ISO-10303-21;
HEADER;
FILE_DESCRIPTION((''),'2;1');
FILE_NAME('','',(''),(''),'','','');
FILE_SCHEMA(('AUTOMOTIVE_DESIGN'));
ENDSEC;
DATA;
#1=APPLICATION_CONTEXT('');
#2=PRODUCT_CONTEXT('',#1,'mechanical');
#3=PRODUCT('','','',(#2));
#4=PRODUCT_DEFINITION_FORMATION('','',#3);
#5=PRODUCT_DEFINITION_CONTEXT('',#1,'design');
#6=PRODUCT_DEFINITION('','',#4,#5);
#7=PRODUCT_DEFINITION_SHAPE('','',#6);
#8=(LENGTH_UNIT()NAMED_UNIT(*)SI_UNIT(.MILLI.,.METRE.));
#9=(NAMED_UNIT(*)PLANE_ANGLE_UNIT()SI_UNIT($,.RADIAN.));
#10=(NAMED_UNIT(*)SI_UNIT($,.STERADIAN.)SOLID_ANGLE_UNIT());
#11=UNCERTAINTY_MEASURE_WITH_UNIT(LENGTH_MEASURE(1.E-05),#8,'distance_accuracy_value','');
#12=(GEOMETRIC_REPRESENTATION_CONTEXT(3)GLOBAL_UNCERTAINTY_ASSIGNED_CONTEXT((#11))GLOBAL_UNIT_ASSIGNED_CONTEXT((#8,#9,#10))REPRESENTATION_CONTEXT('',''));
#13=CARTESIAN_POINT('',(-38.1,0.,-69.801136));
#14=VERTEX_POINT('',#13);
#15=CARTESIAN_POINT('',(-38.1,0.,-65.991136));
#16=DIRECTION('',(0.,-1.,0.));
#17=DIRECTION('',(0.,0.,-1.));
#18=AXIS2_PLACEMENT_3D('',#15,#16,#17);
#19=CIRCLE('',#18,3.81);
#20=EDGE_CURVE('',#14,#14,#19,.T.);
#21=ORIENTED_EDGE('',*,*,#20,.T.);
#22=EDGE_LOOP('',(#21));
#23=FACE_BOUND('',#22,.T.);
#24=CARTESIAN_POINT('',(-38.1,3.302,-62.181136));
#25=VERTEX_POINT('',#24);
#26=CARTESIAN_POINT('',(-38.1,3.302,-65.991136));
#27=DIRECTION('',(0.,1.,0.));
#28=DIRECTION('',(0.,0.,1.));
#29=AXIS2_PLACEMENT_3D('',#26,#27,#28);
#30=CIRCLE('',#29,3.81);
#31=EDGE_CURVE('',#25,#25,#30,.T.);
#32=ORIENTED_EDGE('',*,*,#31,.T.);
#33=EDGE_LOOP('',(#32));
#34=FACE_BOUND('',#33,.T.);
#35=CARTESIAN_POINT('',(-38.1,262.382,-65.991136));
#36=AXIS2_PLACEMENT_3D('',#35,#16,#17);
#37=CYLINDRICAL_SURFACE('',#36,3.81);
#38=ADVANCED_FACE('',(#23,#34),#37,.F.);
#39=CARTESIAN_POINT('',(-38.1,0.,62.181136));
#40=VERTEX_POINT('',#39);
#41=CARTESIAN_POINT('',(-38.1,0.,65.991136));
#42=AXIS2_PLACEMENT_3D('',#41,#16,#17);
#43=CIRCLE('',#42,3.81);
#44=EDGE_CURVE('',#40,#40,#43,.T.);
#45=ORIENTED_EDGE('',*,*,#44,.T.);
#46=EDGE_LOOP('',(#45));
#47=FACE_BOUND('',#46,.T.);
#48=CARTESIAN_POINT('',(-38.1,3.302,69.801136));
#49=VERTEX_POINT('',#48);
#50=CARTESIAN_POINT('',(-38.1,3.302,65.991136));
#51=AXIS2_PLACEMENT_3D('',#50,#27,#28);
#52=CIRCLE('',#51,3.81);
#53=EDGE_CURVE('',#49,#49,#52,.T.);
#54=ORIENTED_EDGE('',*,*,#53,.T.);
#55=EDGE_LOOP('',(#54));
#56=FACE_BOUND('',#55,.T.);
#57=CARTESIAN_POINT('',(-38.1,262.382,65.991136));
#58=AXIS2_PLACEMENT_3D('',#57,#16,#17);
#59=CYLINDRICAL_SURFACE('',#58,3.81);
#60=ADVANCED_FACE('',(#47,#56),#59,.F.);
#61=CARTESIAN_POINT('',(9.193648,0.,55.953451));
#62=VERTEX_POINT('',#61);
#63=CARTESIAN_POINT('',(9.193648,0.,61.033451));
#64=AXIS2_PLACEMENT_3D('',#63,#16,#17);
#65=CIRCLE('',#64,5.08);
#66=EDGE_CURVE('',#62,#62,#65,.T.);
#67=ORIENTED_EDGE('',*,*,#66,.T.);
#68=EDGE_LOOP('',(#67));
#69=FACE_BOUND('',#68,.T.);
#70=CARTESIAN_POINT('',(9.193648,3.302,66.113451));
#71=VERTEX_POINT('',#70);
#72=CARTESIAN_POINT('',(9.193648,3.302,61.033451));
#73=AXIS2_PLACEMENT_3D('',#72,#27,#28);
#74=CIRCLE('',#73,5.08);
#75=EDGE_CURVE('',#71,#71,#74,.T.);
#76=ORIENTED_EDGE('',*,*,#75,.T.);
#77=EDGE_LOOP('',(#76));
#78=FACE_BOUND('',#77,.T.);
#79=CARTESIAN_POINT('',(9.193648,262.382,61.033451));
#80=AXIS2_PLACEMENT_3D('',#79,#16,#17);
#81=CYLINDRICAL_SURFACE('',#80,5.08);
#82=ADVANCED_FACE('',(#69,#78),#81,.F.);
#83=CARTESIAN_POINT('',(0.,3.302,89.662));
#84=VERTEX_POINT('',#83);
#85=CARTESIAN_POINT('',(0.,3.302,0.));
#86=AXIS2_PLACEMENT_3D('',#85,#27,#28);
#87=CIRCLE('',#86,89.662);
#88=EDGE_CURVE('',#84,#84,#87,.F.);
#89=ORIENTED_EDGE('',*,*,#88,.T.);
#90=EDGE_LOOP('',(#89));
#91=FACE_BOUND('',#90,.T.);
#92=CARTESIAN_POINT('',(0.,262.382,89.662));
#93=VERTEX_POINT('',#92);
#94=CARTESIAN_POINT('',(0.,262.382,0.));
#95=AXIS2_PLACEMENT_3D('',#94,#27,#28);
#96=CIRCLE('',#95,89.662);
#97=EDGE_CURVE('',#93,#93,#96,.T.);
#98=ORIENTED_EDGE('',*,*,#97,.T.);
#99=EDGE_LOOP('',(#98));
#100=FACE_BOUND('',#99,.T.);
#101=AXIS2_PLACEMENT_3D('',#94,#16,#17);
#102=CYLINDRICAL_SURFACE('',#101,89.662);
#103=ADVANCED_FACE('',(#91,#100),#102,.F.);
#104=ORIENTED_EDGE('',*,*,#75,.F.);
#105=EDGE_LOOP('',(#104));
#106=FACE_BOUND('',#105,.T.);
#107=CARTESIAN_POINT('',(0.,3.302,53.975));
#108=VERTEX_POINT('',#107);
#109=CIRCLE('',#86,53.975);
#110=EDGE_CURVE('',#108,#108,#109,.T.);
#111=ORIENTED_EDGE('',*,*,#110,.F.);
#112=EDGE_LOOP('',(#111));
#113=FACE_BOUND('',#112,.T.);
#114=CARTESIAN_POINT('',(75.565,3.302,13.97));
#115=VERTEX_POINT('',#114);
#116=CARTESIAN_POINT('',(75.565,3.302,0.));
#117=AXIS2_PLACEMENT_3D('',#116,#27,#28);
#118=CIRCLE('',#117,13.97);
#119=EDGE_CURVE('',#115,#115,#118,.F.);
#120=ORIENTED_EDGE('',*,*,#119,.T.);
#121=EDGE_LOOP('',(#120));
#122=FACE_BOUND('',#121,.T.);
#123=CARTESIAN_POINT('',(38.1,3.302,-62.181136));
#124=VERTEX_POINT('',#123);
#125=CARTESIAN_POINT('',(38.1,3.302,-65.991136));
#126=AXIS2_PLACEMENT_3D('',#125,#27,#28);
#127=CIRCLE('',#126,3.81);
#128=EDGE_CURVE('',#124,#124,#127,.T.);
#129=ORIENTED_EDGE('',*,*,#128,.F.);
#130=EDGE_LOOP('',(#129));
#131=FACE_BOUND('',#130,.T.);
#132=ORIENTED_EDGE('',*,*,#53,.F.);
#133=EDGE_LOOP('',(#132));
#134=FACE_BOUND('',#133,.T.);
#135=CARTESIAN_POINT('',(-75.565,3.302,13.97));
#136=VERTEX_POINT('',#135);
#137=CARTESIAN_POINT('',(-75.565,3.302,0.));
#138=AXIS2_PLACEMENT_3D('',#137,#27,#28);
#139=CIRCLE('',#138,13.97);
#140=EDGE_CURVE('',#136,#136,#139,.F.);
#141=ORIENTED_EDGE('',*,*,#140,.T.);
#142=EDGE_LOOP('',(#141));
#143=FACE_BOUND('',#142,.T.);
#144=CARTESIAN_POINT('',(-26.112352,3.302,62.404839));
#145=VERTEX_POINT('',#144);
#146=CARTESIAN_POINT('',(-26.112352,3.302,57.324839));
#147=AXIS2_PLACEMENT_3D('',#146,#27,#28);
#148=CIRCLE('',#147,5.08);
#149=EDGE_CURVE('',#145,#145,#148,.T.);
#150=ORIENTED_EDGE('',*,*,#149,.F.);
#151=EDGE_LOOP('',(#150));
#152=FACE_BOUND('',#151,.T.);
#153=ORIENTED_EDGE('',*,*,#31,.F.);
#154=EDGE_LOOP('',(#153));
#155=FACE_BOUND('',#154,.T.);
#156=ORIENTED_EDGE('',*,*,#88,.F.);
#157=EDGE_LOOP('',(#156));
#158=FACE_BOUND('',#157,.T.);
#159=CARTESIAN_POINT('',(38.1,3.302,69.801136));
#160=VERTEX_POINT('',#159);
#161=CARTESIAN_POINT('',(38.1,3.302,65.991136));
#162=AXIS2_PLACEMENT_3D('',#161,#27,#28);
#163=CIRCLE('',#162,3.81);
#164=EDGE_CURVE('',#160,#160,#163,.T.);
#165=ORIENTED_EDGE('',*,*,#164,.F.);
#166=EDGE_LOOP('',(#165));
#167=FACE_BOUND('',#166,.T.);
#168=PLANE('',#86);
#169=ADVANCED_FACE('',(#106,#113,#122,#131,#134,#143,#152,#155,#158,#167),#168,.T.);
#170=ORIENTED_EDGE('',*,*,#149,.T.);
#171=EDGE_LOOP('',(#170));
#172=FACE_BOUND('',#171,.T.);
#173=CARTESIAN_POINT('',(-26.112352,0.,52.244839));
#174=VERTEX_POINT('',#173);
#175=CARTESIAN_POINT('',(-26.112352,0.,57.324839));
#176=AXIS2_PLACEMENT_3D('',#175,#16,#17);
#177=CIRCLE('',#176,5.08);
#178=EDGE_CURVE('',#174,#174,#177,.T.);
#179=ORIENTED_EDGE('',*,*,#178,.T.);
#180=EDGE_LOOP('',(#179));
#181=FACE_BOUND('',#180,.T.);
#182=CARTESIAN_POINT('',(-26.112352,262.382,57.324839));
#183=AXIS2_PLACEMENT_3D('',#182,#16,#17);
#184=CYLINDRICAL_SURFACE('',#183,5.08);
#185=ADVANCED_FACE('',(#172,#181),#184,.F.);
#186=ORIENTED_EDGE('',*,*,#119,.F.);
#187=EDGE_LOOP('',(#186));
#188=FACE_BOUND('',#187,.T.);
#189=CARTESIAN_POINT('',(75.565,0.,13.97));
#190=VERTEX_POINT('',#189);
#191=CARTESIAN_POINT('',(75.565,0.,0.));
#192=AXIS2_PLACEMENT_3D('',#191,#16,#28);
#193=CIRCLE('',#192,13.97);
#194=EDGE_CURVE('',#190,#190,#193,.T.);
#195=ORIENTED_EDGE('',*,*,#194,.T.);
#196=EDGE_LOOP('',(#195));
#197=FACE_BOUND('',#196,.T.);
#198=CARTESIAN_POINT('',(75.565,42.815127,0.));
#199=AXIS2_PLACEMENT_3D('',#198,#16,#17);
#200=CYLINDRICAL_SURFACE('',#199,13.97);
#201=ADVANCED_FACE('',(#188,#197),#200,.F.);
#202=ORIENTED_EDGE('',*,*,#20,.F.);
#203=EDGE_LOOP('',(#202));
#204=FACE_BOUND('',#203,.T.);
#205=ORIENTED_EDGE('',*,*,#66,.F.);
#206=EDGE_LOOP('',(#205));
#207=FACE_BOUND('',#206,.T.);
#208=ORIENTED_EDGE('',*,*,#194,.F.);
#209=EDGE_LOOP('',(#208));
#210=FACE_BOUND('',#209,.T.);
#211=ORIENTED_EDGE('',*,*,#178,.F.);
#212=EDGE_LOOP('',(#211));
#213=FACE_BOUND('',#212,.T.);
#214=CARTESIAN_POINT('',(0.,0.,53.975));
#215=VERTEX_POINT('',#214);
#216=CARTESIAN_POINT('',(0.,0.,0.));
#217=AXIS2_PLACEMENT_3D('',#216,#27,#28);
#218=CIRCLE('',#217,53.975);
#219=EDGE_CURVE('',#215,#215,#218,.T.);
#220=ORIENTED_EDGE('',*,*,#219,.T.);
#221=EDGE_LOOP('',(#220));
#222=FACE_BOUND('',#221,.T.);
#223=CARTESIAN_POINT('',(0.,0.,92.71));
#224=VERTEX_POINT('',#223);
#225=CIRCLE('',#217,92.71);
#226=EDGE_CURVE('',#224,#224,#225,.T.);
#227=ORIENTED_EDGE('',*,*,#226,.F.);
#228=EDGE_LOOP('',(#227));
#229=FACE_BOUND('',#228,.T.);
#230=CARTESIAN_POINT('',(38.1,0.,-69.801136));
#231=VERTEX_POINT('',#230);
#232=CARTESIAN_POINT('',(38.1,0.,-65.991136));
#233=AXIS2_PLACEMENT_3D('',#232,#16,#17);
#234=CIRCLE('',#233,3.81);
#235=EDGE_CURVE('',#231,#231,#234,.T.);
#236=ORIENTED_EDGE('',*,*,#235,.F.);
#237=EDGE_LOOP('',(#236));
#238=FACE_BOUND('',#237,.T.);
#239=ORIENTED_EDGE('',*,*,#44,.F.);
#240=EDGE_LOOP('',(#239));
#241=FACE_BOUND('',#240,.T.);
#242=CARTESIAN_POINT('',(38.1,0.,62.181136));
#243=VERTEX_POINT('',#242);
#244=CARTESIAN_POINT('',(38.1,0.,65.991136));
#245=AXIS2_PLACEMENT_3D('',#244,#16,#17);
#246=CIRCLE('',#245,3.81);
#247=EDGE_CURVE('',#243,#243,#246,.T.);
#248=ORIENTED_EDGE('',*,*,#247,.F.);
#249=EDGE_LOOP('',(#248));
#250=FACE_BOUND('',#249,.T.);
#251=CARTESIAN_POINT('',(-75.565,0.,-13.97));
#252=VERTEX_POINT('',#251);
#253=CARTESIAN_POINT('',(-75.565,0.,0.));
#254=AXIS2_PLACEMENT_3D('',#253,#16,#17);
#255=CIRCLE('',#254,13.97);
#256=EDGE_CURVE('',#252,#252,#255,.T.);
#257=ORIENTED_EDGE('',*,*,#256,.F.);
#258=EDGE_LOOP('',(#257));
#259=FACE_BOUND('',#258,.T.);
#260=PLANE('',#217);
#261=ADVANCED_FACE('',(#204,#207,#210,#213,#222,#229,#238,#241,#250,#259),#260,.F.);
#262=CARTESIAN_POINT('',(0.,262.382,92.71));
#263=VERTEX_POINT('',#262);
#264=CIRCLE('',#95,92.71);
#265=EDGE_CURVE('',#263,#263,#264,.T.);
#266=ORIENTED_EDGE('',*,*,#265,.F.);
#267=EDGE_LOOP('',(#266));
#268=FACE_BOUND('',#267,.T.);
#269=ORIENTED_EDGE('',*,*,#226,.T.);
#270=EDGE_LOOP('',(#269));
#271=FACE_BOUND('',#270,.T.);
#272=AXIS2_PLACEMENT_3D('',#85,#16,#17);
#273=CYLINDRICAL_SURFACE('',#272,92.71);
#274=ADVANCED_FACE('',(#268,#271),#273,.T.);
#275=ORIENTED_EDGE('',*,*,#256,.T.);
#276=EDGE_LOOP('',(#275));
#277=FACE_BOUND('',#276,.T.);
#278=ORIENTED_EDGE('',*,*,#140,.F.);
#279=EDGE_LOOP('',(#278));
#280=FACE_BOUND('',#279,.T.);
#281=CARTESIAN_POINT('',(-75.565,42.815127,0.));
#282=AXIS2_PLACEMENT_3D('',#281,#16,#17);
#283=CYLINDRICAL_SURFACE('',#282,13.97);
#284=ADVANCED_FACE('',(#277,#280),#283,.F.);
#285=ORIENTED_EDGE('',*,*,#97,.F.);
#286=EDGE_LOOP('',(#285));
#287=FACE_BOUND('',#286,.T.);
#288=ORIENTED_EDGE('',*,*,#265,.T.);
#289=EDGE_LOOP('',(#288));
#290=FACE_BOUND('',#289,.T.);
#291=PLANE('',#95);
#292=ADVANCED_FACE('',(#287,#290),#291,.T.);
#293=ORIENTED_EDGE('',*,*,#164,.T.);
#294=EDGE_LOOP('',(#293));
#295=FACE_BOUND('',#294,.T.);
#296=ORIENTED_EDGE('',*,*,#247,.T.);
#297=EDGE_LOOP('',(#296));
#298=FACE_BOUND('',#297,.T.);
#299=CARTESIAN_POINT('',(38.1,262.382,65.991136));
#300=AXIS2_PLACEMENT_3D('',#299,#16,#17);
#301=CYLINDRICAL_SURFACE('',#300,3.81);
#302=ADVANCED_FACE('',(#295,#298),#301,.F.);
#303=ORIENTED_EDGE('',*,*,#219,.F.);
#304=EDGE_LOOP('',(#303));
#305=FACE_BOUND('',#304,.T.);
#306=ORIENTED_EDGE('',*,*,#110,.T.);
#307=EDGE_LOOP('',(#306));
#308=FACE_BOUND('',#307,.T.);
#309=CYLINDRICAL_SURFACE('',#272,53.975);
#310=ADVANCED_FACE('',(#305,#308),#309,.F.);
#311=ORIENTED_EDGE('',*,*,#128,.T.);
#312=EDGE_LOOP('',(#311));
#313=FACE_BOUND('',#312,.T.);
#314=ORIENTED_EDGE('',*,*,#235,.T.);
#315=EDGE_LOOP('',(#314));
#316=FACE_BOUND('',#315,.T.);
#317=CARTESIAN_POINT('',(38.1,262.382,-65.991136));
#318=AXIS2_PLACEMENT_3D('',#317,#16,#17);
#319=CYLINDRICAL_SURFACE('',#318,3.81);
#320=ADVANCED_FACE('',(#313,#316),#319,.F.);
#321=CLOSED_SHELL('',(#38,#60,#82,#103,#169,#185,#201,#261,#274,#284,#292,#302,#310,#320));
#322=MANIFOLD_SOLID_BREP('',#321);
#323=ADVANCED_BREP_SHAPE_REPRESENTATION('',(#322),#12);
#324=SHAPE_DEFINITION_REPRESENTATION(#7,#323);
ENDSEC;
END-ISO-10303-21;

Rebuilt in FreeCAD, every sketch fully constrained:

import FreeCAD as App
import Part
import Sketcher
from FreeCAD import Vector
Q = App.Units.Quantity

doc = App.newDocument("Part")
body = doc.addObject("PartDesign::Body", "Body")

# Sketch on XZ plane
sketch1 = doc.addObject("Sketcher::SketchObject", "Sketch")
body.addObject(sketch1)
sketch1.AttachmentSupport = (doc.XZ_Plane, [""])
sketch1.MapMode = "FlatFace"
sketch1.addGeometry([
    Part.Circle(Vector(0, 0, 0), Vector(0, 0, 1), 92.71),
    Part.Circle(Vector(0, 0, 0), Vector(0, 0, 1), 53.975),
], False)
sketch1.addConstraint([
    Sketcher.Constraint("Coincident", 0, 3, -1, 1),
    Sketcher.Constraint("Coincident", 1, 3, -1, 1),
    Sketcher.Constraint("Diameter", 0, Q("7.3 in")),
    Sketcher.Constraint("Diameter", 1, Q("4.25 in")),
])
pad1 = doc.addObject("PartDesign::Pad", "Pad")
body.addObject(pad1)
pad1.Profile = sketch1
pad1.Length = Q("0.13 in")
pad1.Reversed = True

# Sketch on XZ plane
sketch2 = doc.addObject("Sketcher::SketchObject", "Sketch001")
body.addObject(sketch2)
sketch2.AttachmentSupport = (doc.XZ_Plane, [""])
sketch2.MapMode = "FlatFace"
sketch2.AttachmentOffset = App.Placement(Vector(0, 0, -0.13 * 25.4), App.Rotation())
sketch2.addGeometry([
    Part.Circle(Vector(0, 0, 0), Vector(0, 0, 1), 92.71),
    Part.Circle(Vector(0, 0, 0), Vector(0, 0, 1), 89.662),
], False)
sketch2.addConstraint([
    Sketcher.Constraint("Coincident", 0, 3, -1, 1),
    Sketcher.Constraint("Coincident", 1, 3, -1, 1),
    Sketcher.Constraint("Diameter", 0, Q("7.3 in")),
    Sketcher.Constraint("Diameter", 1, Q("7.06 in")),
])
pad2 = doc.addObject("PartDesign::Pad", "Pad001")
body.addObject(pad2)
pad2.Profile = sketch2
pad2.Length = Q("10.2 in")
pad2.Reversed = True

# Sketch on XZ plane
sketch3 = doc.addObject("Sketcher::SketchObject", "Sketch002")
body.addObject(sketch3)
sketch3.AttachmentSupport = (doc.XZ_Plane, [""])
sketch3.MapMode = "FlatFace"
sketch3.addGeometry([
    Part.Circle(Vector(-75.565, 0, 0), Vector(0, 0, 1), 13.97),
    Part.Circle(Vector(75.565, 0, 0), Vector(0, 0, 1), 13.97),
], False)
sketch3.addConstraint([
    Sketcher.Constraint("Equal", 0, 1),
    Sketcher.Constraint("Symmetric", 0, 3, 1, 3, -1, 1),
    Sketcher.Constraint("PointOnObject", 0, 3, -1),
    Sketcher.Constraint("Diameter", 0, Q("1.1 in")),
    Sketcher.Constraint("DistanceX", 0, 3, 1, 3, Q("5.95 in")),
])
pocket1 = doc.addObject("PartDesign::Pocket", "Pocket")
body.addObject(pocket1)
pocket1.Profile = sketch3
pocket1.Length = Q("0.13 in")

# Sketch on XZ plane
sketch4 = doc.addObject("Sketcher::SketchObject", "Sketch003")
body.addObject(sketch4)
sketch4.AttachmentSupport = (doc.XZ_Plane, [""])
sketch4.MapMode = "FlatFace"
sketch4.addGeometry([
    Part.Circle(Vector(38.1, 65.991136, 0), Vector(0, 0, 1), 3.81),
    Part.Circle(Vector(-38.1, 65.991136, 0), Vector(0, 0, 1), 3.81),
    Part.Circle(Vector(-38.1, -65.991136, 0), Vector(0, 0, 1), 3.81),
    Part.Circle(Vector(38.1, -65.991136, 0), Vector(0, 0, 1), 3.81),
], False)
sketch4.addConstraint([
    Sketcher.Constraint("Equal", 0, 1),
    Sketcher.Constraint("Equal", 1, 2),
    Sketcher.Constraint("Equal", 2, 3),
    Sketcher.Constraint("Symmetric", 0, 3, 2, 3, -1, 1),
    Sketcher.Constraint("Symmetric", 1, 3, 3, 3, -1, 1),
    Sketcher.Constraint("Symmetric", 0, 3, 1, 3, -2),
    Sketcher.Constraint("Diameter", 0, Q("0.3 in")),
    Sketcher.Constraint("DistanceX", 1, 3, 0, 3, Q("3 in")),
    Sketcher.Constraint("DistanceY", 2, 3, 1, 3, 131.982272),
])
pocket2 = doc.addObject("PartDesign::Pocket", "Pocket001")
body.addObject(pocket2)
pocket2.Profile = sketch4
pocket2.Type = "ThroughAll"

# Sketch on XZ plane
sketch5 = doc.addObject("Sketcher::SketchObject", "Sketch004")
body.addObject(sketch5)
sketch5.AttachmentSupport = (doc.XZ_Plane, [""])
sketch5.MapMode = "FlatFace"
sketch5.addGeometry([
    Part.Circle(Vector(-26.112352, 57.324839, 0), Vector(0, 0, 1), 5.08),
    Part.Circle(Vector(9.193648, 61.033451, 0), Vector(0, 0, 1), 5.08),
], False)
sketch5.addConstraint([
    Sketcher.Constraint("Equal", 0, 1),
    Sketcher.Constraint("Diameter", 0, Q("0.4 in")),
    Sketcher.Constraint("DistanceX", 0, 3, 1, 3, Q("1.39 in")),
    Sketcher.Constraint("DistanceY", -1, 1, 0, 3, 57.324839),
    Sketcher.Constraint("DistanceY", -1, 1, 1, 3, 61.033451),
    Sketcher.Constraint("DistanceX", 0, 3, -1, 1, 26.112352),
])
pocket3 = doc.addObject("PartDesign::Pocket", "Pocket002")
body.addObject(pocket3)
pocket3.Profile = sketch5
pocket3.Type = "ThroughAll"

doc.recompute()
